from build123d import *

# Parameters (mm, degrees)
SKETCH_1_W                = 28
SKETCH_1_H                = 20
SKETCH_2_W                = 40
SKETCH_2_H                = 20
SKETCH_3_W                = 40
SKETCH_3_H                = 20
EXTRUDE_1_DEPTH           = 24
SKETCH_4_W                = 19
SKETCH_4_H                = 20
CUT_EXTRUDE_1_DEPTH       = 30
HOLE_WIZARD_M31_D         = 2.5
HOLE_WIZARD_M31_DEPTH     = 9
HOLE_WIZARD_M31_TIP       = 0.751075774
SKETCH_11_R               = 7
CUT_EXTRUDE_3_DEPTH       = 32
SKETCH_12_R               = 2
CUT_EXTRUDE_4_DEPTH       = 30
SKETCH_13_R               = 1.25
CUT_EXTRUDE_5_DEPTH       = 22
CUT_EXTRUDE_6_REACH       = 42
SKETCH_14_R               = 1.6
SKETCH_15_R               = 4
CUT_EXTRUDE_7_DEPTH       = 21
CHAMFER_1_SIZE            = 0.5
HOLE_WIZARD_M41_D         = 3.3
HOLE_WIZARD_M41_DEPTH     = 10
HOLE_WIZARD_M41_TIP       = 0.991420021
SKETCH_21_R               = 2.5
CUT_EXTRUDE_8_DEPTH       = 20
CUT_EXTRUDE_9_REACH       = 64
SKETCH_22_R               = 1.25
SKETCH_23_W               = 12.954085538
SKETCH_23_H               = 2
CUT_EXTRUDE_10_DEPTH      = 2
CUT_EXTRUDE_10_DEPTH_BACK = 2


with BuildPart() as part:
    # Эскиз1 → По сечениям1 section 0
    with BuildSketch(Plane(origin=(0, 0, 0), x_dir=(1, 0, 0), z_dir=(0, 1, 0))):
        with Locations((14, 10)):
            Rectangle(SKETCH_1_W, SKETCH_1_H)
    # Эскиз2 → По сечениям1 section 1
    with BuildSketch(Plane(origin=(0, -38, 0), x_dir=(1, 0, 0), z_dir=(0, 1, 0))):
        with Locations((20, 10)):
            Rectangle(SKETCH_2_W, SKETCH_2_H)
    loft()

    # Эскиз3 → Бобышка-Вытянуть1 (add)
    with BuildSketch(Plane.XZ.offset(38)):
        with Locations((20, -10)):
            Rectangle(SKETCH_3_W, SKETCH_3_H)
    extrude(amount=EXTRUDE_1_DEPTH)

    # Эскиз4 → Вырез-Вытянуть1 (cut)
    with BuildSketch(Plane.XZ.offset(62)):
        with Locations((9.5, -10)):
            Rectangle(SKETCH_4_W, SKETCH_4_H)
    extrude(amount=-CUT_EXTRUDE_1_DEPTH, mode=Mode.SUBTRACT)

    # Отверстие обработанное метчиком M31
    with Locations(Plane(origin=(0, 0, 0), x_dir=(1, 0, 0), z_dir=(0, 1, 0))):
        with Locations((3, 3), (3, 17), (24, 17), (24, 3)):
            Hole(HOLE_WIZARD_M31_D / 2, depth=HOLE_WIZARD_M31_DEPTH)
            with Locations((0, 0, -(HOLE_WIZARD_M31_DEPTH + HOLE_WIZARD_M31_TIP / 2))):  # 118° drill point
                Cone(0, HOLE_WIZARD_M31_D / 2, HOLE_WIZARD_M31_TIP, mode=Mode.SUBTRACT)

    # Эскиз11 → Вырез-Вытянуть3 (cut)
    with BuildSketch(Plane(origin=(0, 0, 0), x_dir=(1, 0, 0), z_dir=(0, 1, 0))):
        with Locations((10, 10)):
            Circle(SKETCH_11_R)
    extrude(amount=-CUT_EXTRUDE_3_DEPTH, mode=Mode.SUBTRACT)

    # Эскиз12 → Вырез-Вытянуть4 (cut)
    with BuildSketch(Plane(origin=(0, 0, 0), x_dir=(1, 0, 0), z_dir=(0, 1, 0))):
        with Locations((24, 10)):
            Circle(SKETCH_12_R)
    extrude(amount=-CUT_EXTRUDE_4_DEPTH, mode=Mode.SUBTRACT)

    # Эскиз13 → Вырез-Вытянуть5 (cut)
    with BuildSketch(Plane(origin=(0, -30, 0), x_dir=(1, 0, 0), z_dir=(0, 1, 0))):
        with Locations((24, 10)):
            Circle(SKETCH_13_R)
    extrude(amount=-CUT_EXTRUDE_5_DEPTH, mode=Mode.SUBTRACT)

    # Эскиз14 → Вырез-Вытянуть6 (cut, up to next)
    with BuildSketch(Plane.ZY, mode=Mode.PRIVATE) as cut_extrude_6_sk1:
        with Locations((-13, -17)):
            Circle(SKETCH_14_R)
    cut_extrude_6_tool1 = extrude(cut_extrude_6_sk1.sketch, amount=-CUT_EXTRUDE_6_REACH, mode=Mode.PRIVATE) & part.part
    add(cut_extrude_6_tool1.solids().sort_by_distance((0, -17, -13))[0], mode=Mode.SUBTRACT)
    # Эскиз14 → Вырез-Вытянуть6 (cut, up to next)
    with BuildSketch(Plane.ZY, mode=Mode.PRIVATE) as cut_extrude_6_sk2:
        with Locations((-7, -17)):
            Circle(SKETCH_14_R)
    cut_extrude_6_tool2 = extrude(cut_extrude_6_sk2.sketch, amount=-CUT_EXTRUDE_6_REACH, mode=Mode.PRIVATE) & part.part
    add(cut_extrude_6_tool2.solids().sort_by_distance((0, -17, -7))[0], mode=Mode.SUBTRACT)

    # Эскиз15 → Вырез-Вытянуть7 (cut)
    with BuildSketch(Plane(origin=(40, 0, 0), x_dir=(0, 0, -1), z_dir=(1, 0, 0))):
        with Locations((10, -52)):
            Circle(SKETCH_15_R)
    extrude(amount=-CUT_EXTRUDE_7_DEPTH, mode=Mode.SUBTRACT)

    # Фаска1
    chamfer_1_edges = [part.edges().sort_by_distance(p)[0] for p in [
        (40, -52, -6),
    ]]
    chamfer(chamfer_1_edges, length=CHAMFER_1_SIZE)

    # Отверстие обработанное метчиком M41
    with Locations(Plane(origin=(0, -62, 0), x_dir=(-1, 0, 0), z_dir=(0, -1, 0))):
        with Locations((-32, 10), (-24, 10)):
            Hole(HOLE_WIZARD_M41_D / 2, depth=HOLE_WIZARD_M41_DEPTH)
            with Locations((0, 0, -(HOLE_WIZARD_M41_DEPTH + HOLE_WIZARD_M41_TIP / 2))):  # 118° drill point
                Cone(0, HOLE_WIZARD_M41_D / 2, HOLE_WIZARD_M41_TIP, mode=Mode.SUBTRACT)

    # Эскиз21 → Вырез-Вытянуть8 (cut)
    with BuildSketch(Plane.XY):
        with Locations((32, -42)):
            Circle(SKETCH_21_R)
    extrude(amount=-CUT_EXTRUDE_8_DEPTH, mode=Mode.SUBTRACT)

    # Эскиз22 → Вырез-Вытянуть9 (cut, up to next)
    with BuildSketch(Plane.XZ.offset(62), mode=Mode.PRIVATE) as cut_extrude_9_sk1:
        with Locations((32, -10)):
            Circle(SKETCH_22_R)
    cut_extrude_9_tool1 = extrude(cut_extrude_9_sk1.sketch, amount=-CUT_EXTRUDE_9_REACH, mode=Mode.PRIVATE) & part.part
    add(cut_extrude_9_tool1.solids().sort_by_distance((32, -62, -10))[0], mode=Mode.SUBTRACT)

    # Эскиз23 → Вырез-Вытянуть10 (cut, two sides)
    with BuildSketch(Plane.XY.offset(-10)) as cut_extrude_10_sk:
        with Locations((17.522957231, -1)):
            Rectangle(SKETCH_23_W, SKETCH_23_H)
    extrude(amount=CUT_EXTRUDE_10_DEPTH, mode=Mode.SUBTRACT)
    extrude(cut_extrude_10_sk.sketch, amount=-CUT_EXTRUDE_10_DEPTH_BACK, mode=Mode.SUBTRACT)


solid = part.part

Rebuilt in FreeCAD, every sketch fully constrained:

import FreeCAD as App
import Part
import Sketcher
from FreeCAD import Vector


def edges_at(feature, points):
    """Names of the edges that pass closest to the given points."""
    edges = feature.Shape.Edges
    near = lambda p: min(range(len(edges)), key=lambda i: edges[i].distToShape(Part.Vertex(*p))[0])
    return sorted({f"Edge{near(p) + 1}" for p in points})

doc = App.newDocument("Part")
body = doc.addObject("PartDesign::Body", "Body")

sketch1 = doc.addObject("Sketcher::SketchObject", "Sketch")
body.addObject(sketch1)
sketch1.AttachmentSupport = (doc.XZ_Plane, [""])
sketch1.MapMode = "FlatFace"
sketch1.addGeometry([
    Part.LineSegment(Vector(0, -20, 0), Vector(0, 0, 0)),
    Part.LineSegment(Vector(0, 0, 0), Vector(28, 0, 0)),
    Part.LineSegment(Vector(28, 0, 0), Vector(28, -20, 0)),
    Part.LineSegment(Vector(28, -20, 0), Vector(0, -20, 0)),
], False)
sketch1.addConstraint([
    Sketcher.Constraint("Coincident", 0, 2, 1, 1),
    Sketcher.Constraint("Coincident", 1, 2, 2, 1),
    Sketcher.Constraint("Coincident", 2, 2, 3, 1),
    Sketcher.Constraint("Coincident", 3, 2, 0, 1),
    Sketcher.Constraint("Vertical", 0),
    Sketcher.Constraint("Horizontal", 1),
    Sketcher.Constraint("Vertical", 2),
    Sketcher.Constraint("Horizontal", 3),
    Sketcher.Constraint("Coincident", 0, 2, -1, 1),
    Sketcher.Constraint("DistanceX", 1, 1, 1, 2, 28.0),
    Sketcher.Constraint("DistanceY", 0, 1, 0, 2, 20.0),
])

sketch2 = doc.addObject("Sketcher::SketchObject", "Sketch001")
body.addObject(sketch2)
sketch2.AttachmentSupport = (doc.XZ_Plane, [""])
sketch2.MapMode = "FlatFace"
sketch2.AttachmentOffset = App.Placement(Vector(0, 0, 38), App.Rotation())
sketch2.addGeometry([
    Part.LineSegment(Vector(0, -20, 0), Vector(0, 0, 0)),
    Part.LineSegment(Vector(0, 0, 0), Vector(40, 0, 0)),
    Part.LineSegment(Vector(40, 0, 0), Vector(40, -20, 0)),
    Part.LineSegment(Vector(40, -20, 0), Vector(0, -20, 0)),
], False)
sketch2.addConstraint([
    Sketcher.Constraint("Coincident", 0, 2, 1, 1),
    Sketcher.Constraint("Coincident", 1, 2, 2, 1),
    Sketcher.Constraint("Coincident", 2, 2, 3, 1),
    Sketcher.Constraint("Coincident", 3, 2, 0, 1),
    Sketcher.Constraint("Vertical", 0),
    Sketcher.Constraint("Horizontal", 1),
    Sketcher.Constraint("Vertical", 2),
    Sketcher.Constraint("Horizontal", 3),
    Sketcher.Constraint("Coincident", 0, 2, -1, 1),
    Sketcher.Constraint("DistanceX", 1, 1, 1, 2, 40.0),
    Sketcher.Constraint("DistanceY", 0, 1, 0, 2, 20.0),
])

additiveloft = doc.addObject("PartDesign::AdditiveLoft", "AdditiveLoft")
body.addObject(additiveloft)
additiveloft.Profile = sketch1
additiveloft.Sections = [sketch2]

sketch3 = doc.addObject("Sketcher::SketchObject", "Sketch002")
body.addObject(sketch3)
sketch3.AttachmentSupport = (doc.XZ_Plane, [""])
sketch3.MapMode = "FlatFace"
sketch3.AttachmentOffset = App.Placement(Vector(0, 0, 38), App.Rotation())
sketch3.addGeometry([
    Part.LineSegment(Vector(0, 0, 0), Vector(0, -20, 0)),
    Part.LineSegment(Vector(0, -20, 0), Vector(40, -20, 0)),
    Part.LineSegment(Vector(40, -20, 0), Vector(40, 0, 0)),
    Part.LineSegment(Vector(40, 0, 0), Vector(0, 0, 0)),
], False)
sketch3.addConstraint([
    Sketcher.Constraint("Coincident", 0, 2, 1, 1),
    Sketcher.Constraint("Coincident", 1, 2, 2, 1),
    Sketcher.Constraint("Coincident", 2, 2, 3, 1),
    Sketcher.Constraint("Coincident", 3, 2, 0, 1),
    Sketcher.Constraint("Vertical", 0),
    Sketcher.Constraint("Horizontal", 1),
    Sketcher.Constraint("Vertical", 2),
    Sketcher.Constraint("Horizontal", 3),
    Sketcher.Constraint("Coincident", 3, 2, -1, 1),
    Sketcher.Constraint("DistanceX", 1, 1, 1, 2, 40.0),
    Sketcher.Constraint("DistanceY", 0, 2, 0, 1, 20.0),
])
pad1 = doc.addObject("PartDesign::Pad", "Pad")
body.addObject(pad1)
pad1.Profile = sketch3
pad1.Length = 24

sketch4 = doc.addObject("Sketcher::SketchObject", "Sketch003")
body.addObject(sketch4)
sketch4.AttachmentSupport = (doc.XZ_Plane, [""])
sketch4.MapMode = "FlatFace"
sketch4.AttachmentOffset = App.Placement(Vector(0, 0, 62), App.Rotation())
sketch4.addGeometry([
    Part.LineSegment(Vector(0, 0, 0), Vector(0, -20, 0)),
    Part.LineSegment(Vector(0, -20, 0), Vector(19, -20, 0)),
    Part.LineSegment(Vector(19, -20, 0), Vector(19, 0, 0)),
    Part.LineSegment(Vector(19, 0, 0), Vector(0, 0, 0)),
], False)
sketch4.addConstraint([
    Sketcher.Constraint("Coincident", 0, 2, 1, 1),
    Sketcher.Constraint("Coincident", 1, 2, 2, 1),
    Sketcher.Constraint("Coincident", 2, 2, 3, 1),
    Sketcher.Constraint("Coincident", 3, 2, 0, 1),
    Sketcher.Constraint("Vertical", 0),
    Sketcher.Constraint("Horizontal", 1),
    Sketcher.Constraint("Vertical", 2),
    Sketcher.Constraint("Horizontal", 3),
    Sketcher.Constraint("Coincident", 3, 2, -1, 1),
    Sketcher.Constraint("DistanceX", 1, 1, 1, 2, 19.0),
    Sketcher.Constraint("DistanceY", 0, 2, 0, 1, 20.0),
])
pocket1 = doc.addObject("PartDesign::Pocket", "Pocket")
body.addObject(pocket1)
pocket1.Profile = sketch4
pocket1.Length = 30

sketch5 = doc.addObject("Sketcher::SketchObject", "Sketch004")
body.addObject(sketch5)
sketch5.AttachmentSupport = (doc.XZ_Plane, [""])
sketch5.MapMode = "FlatFace"
sketch5.addGeometry([
    Part.Circle(Vector(3, -3, 0), Vector(0, 0, 1), 1.25),
    Part.Circle(Vector(3, -17, 0), Vector(0, 0, 1), 1.25),
    Part.Circle(Vector(24, -17, 0), Vector(0, 0, 1), 1.25),
    Part.Circle(Vector(24, -3, 0), Vector(0, 0, 1), 1.25),
], False)
sketch5.addConstraint([
    Sketcher.Constraint("Equal", 0, 1),
    Sketcher.Constraint("Equal", 1, 2),
    Sketcher.Constraint("Equal", 2, 3),
    Sketcher.Constraint("Horizontal", 1, 3, 2, 3),
    Sketcher.Constraint("Horizontal", 0, 3, 3, 3),
    Sketcher.Constraint("Vertical", 0, 3, 1, 3),
    Sketcher.Constraint("Vertical", 2, 3, 3, 3),
    Sketcher.Constraint("Diameter", 0, 2.5),
    Sketcher.Constraint("DistanceX", -1, 1, 0, 3, 3.0),
    Sketcher.Constraint("DistanceY", 0, 3, -1, 1, 3.0),
    Sketcher.Constraint("DistanceY", 1, 3, -1, 1, 17.0),
    Sketcher.Constraint("DistanceX", -1, 1, 2, 3, 24.0),
])
doc.recompute()
hole = doc.addObject("PartDesign::Hole", "Hole")
body.addObject(hole)
hole.Profile = sketch5
hole.ThreadType = "None"
hole.Diameter = 2.5
hole.DepthType = "Dimension"
hole.Depth = 9
hole.DrillPoint = "Angled"
hole.DrillPointAngle = 118
hole.Reversed = True

sketch6 = doc.addObject("Sketcher::SketchObject", "Sketch005")
body.addObject(sketch6)
sketch6.AttachmentSupport = (doc.XZ_Plane, [""])
sketch6.MapMode = "FlatFace"
sketch6.addGeometry(Part.Circle(Vector(10, -10, 0), Vector(0, 0, 1), 7), False)
sketch6.addConstraint([
    Sketcher.Constraint("Diameter", 0, 14.0),
    Sketcher.Constraint("DistanceX", -1, 1, 0, 3, 10.0),
    Sketcher.Constraint("DistanceY", 0, 3, -1, 1, 10.0),
])
pocket2 = doc.addObject("PartDesign::Pocket", "Pocket001")
body.addObject(pocket2)
pocket2.Profile = sketch6
pocket2.Length = 32
pocket2.Reversed = True

sketch7 = doc.addObject("Sketcher::SketchObject", "Sketch006")
body.addObject(sketch7)
sketch7.AttachmentSupport = (doc.XZ_Plane, [""])
sketch7.MapMode = "FlatFace"
sketch7.addGeometry(Part.Circle(Vector(24, -10, 0), Vector(0, 0, 1), 2), False)
sketch7.addConstraint([
    Sketcher.Constraint("Diameter", 0, 4.0),
    Sketcher.Constraint("DistanceX", -1, 1, 0, 3, 24.0),
    Sketcher.Constraint("DistanceY", 0, 3, -1, 1, 10.0),
])
pocket3 = doc.addObject("PartDesign::Pocket", "Pocket002")
body.addObject(pocket3)
pocket3.Profile = sketch7
pocket3.Length = 30
pocket3.Reversed = True

sketch8 = doc.addObject("Sketcher::SketchObject", "Sketch007")
body.addObject(sketch8)
sketch8.AttachmentSupport = (doc.XZ_Plane, [""])
sketch8.MapMode = "FlatFace"
sketch8.AttachmentOffset = App.Placement(Vector(0, 0, 30), App.Rotation())
sketch8.addGeometry(Part.Circle(Vector(24, -10, 0), Vector(0, 0, 1), 1.25), False)
sketch8.addConstraint([
    Sketcher.Constraint("Diameter", 0, 2.5),
    Sketcher.Constraint("DistanceX", -1, 1, 0, 3, 24.0),
    Sketcher.Constraint("DistanceY", 0, 3, -1, 1, 10.0),
])
pocket4 = doc.addObject("PartDesign::Pocket", "Pocket003")
body.addObject(pocket4)
pocket4.Profile = sketch8
pocket4.Length = 22
pocket4.Reversed = True

sketch9 = doc.addObject("Sketcher::SketchObject", "Sketch008")
body.addObject(sketch9)
sketch9.AttachmentSupport = (doc.YZ_Plane, [""])
sketch9.MapMode = "FlatFace"
sketch9.addGeometry(Part.Circle(Vector(-17, -13, 0), Vector(0, 0, 1), 1.6), False)
sketch9.addConstraint([
    Sketcher.Constraint("Diameter", 0, 3.2),
    Sketcher.Constraint("DistanceX", 0, 3, -1, 1, 17.0),
    Sketcher.Constraint("DistanceY", 0, 3, -1, 1, 13.0),
])
pocket5 = doc.addObject("PartDesign::Pocket", "Pocket004")
body.addObject(pocket5)
pocket5.Profile = sketch9
pocket5.Type = "UpToFirst"
pocket5.Reversed = True

sketch10 = doc.addObject("Sketcher::SketchObject", "Sketch009")
body.addObject(sketch10)
sketch10.AttachmentSupport = (doc.YZ_Plane, [""])
sketch10.MapMode = "FlatFace"
sketch10.addGeometry(Part.Circle(Vector(-17, -7, 0), Vector(0, 0, 1), 1.6), False)
sketch10.addConstraint([
    Sketcher.Constraint("Diameter", 0, 3.2),
    Sketcher.Constraint("DistanceX", 0, 3, -1, 1, 17.0),
    Sketcher.Constraint("DistanceY", 0, 3, -1, 1, 7.0),
])
pocket6 = doc.addObject("PartDesign::Pocket", "Pocket005")
body.addObject(pocket6)
pocket6.Profile = sketch10
pocket6.Type = "UpToFirst"
pocket6.Reversed = True

sketch11 = doc.addObject("Sketcher::SketchObject", "Sketch010")
body.addObject(sketch11)
sketch11.AttachmentSupport = (doc.YZ_Plane, [""])
sketch11.MapMode = "FlatFace"
sketch11.AttachmentOffset = App.Placement(Vector(0, 0, 40), App.Rotation())
sketch11.addGeometry(Part.Circle(Vector(-52, -10, 0), Vector(0, 0, 1), 4), False)
sketch11.addConstraint([
    Sketcher.Constraint("Diameter", 0, 8.0),
    Sketcher.Constraint("DistanceX", 0, 3, -1, 1, 52.0),
    Sketcher.Constraint("DistanceY", 0, 3, -1, 1, 10.0),
])
pocket7 = doc.addObject("PartDesign::Pocket", "Pocket006")
body.addObject(pocket7)
pocket7.Profile = sketch11
pocket7.Length = 21
doc.recompute()

chamfer = doc.addObject("PartDesign::Chamfer", "Chamfer")
body.addObject(chamfer)
chamfer.Base = (pocket7, edges_at(pocket7, [(40, -52, -6)]))
chamfer.Size = 0.5

sketch12 = doc.addObject("Sketcher::SketchObject", "Sketch011")
body.addObject(sketch12)
sketch12.AttachmentSupport = (doc.XZ_Plane, [""])
sketch12.MapMode = "FlatFace"
sketch12.AttachmentOffset = App.Placement(Vector(0, 0, 62), App.Rotation())
sketch12.addGeometry([
    Part.Circle(Vector(32, -10, 0), Vector(0, 0, 1), 1.65),
    Part.Circle(Vector(24, -10, 0), Vector(0, 0, 1), 1.65),
], False)
sketch12.addConstraint([
    Sketcher.Constraint("Equal", 0, 1),
    Sketcher.Constraint("Horizontal", 0, 3, 1, 3),
    Sketcher.Constraint("Diameter", 0, 3.3),
    Sketcher.Constraint("DistanceX", -1, 1, 0, 3, 32.0),
    Sketcher.Constraint("DistanceY", 0, 3, -1, 1, 10.0),
    Sketcher.Constraint("DistanceX", -1, 1, 1, 3, 24.0),
])
doc.recompute()
hole2 = doc.addObject("PartDesign::Hole", "Hole001")
body.addObject(hole2)
hole2.Profile = sketch12
hole2.ThreadType = "None"
hole2.Diameter = 3.3
hole2.DepthType = "Dimension"
hole2.Depth = 10
hole2.DrillPoint = "Angled"
hole2.DrillPointAngle = 118

sketch13 = doc.addObject("Sketcher::SketchObject", "Sketch012")
body.addObject(sketch13)
sketch13.AttachmentSupport = (doc.XY_Plane, [""])
sketch13.MapMode = "FlatFace"
sketch13.addGeometry(Part.Circle(Vector(32, -42, 0), Vector(0, 0, 1), 2.5), False)
sketch13.addConstraint([
    Sketcher.Constraint("Diameter", 0, 5.0),
    Sketcher.Constraint("DistanceX", -1, 1, 0, 3, 32.0),
    Sketcher.Constraint("DistanceY", 0, 3, -1, 1, 42.0),
])
pocket8 = doc.addObject("PartDesign::Pocket", "Pocket007")
body.addObject(pocket8)
pocket8.Profile = sketch13
pocket8.Length = 20

sketch14 = doc.addObject("Sketcher::SketchObject", "Sketch013")
body.addObject(sketch14)
sketch14.AttachmentSupport = (doc.XZ_Plane, [""])
sketch14.MapMode = "FlatFace"
sketch14.AttachmentOffset = App.Placement(Vector(0, 0, 62), App.Rotation())
sketch14.addGeometry(Part.Circle(Vector(32, -10, 0), Vector(0, 0, 1), 1.25), False)
sketch14.addConstraint([
    Sketcher.Constraint("Diameter", 0, 2.5),
    Sketcher.Constraint("DistanceX", -1, 1, 0, 3, 32.0),
    Sketcher.Constraint("DistanceY", 0, 3, -1, 1, 10.0),
])
pocket9 = doc.addObject("PartDesign::Pocket", "Pocket008")
body.addObject(pocket9)
pocket9.Profile = sketch14
pocket9.Length = 17.834936

sketch15 = doc.addObject("Sketcher::SketchObject", "Sketch014")
body.addObject(sketch15)
sketch15.AttachmentSupport = (doc.XY_Plane, [""])
sketch15.MapMode = "FlatFace"
sketch15.AttachmentOffset = App.Placement(Vector(0, 0, -10), App.Rotation())
sketch15.addGeometry([
    Part.LineSegment(Vector(11.045914, 0, 0), Vector(11.045914, -2, 0)),
    Part.LineSegment(Vector(11.045914, -2, 0), Vector(24, -2, 0)),
    Part.LineSegment(Vector(24, -2, 0), Vector(24, 0, 0)),
    Part.LineSegment(Vector(24, 0, 0), Vector(11.045914, 0, 0)),
], False)
sketch15.addConstraint([
    Sketcher.Constraint("Coincident", 0, 2, 1, 1),
    Sketcher.Constraint("Coincident", 1, 2, 2, 1),
    Sketcher.Constraint("Coincident", 2, 2, 3, 1),
    Sketcher.Constraint("Coincident", 3, 2, 0, 1),
    Sketcher.Constraint("Vertical", 0),
    Sketcher.Constraint("Horizontal", 1),
    Sketcher.Constraint("Vertical", 2),
    Sketcher.Constraint("Horizontal", 3),
    Sketcher.Constraint("PointOnObject", 2, 2, -1),
    Sketcher.Constraint("DistanceY", 0, 2, 0, 1, 2.0),
    Sketcher.Constraint("DistanceX", -1, 1, 1, 2, 24.0),
    Sketcher.Constraint("DistanceX", 1, 1, 1, 2, 12.954086),
])
pocket10 = doc.addObject("PartDesign::Pocket", "Pocket009")
body.addObject(pocket10)
pocket10.Profile = sketch15
pocket10.Type = "TwoLengths"
pocket10.Length = 2
pocket10.Length2 = 2
pocket10.Reversed = True

doc.recompute()
